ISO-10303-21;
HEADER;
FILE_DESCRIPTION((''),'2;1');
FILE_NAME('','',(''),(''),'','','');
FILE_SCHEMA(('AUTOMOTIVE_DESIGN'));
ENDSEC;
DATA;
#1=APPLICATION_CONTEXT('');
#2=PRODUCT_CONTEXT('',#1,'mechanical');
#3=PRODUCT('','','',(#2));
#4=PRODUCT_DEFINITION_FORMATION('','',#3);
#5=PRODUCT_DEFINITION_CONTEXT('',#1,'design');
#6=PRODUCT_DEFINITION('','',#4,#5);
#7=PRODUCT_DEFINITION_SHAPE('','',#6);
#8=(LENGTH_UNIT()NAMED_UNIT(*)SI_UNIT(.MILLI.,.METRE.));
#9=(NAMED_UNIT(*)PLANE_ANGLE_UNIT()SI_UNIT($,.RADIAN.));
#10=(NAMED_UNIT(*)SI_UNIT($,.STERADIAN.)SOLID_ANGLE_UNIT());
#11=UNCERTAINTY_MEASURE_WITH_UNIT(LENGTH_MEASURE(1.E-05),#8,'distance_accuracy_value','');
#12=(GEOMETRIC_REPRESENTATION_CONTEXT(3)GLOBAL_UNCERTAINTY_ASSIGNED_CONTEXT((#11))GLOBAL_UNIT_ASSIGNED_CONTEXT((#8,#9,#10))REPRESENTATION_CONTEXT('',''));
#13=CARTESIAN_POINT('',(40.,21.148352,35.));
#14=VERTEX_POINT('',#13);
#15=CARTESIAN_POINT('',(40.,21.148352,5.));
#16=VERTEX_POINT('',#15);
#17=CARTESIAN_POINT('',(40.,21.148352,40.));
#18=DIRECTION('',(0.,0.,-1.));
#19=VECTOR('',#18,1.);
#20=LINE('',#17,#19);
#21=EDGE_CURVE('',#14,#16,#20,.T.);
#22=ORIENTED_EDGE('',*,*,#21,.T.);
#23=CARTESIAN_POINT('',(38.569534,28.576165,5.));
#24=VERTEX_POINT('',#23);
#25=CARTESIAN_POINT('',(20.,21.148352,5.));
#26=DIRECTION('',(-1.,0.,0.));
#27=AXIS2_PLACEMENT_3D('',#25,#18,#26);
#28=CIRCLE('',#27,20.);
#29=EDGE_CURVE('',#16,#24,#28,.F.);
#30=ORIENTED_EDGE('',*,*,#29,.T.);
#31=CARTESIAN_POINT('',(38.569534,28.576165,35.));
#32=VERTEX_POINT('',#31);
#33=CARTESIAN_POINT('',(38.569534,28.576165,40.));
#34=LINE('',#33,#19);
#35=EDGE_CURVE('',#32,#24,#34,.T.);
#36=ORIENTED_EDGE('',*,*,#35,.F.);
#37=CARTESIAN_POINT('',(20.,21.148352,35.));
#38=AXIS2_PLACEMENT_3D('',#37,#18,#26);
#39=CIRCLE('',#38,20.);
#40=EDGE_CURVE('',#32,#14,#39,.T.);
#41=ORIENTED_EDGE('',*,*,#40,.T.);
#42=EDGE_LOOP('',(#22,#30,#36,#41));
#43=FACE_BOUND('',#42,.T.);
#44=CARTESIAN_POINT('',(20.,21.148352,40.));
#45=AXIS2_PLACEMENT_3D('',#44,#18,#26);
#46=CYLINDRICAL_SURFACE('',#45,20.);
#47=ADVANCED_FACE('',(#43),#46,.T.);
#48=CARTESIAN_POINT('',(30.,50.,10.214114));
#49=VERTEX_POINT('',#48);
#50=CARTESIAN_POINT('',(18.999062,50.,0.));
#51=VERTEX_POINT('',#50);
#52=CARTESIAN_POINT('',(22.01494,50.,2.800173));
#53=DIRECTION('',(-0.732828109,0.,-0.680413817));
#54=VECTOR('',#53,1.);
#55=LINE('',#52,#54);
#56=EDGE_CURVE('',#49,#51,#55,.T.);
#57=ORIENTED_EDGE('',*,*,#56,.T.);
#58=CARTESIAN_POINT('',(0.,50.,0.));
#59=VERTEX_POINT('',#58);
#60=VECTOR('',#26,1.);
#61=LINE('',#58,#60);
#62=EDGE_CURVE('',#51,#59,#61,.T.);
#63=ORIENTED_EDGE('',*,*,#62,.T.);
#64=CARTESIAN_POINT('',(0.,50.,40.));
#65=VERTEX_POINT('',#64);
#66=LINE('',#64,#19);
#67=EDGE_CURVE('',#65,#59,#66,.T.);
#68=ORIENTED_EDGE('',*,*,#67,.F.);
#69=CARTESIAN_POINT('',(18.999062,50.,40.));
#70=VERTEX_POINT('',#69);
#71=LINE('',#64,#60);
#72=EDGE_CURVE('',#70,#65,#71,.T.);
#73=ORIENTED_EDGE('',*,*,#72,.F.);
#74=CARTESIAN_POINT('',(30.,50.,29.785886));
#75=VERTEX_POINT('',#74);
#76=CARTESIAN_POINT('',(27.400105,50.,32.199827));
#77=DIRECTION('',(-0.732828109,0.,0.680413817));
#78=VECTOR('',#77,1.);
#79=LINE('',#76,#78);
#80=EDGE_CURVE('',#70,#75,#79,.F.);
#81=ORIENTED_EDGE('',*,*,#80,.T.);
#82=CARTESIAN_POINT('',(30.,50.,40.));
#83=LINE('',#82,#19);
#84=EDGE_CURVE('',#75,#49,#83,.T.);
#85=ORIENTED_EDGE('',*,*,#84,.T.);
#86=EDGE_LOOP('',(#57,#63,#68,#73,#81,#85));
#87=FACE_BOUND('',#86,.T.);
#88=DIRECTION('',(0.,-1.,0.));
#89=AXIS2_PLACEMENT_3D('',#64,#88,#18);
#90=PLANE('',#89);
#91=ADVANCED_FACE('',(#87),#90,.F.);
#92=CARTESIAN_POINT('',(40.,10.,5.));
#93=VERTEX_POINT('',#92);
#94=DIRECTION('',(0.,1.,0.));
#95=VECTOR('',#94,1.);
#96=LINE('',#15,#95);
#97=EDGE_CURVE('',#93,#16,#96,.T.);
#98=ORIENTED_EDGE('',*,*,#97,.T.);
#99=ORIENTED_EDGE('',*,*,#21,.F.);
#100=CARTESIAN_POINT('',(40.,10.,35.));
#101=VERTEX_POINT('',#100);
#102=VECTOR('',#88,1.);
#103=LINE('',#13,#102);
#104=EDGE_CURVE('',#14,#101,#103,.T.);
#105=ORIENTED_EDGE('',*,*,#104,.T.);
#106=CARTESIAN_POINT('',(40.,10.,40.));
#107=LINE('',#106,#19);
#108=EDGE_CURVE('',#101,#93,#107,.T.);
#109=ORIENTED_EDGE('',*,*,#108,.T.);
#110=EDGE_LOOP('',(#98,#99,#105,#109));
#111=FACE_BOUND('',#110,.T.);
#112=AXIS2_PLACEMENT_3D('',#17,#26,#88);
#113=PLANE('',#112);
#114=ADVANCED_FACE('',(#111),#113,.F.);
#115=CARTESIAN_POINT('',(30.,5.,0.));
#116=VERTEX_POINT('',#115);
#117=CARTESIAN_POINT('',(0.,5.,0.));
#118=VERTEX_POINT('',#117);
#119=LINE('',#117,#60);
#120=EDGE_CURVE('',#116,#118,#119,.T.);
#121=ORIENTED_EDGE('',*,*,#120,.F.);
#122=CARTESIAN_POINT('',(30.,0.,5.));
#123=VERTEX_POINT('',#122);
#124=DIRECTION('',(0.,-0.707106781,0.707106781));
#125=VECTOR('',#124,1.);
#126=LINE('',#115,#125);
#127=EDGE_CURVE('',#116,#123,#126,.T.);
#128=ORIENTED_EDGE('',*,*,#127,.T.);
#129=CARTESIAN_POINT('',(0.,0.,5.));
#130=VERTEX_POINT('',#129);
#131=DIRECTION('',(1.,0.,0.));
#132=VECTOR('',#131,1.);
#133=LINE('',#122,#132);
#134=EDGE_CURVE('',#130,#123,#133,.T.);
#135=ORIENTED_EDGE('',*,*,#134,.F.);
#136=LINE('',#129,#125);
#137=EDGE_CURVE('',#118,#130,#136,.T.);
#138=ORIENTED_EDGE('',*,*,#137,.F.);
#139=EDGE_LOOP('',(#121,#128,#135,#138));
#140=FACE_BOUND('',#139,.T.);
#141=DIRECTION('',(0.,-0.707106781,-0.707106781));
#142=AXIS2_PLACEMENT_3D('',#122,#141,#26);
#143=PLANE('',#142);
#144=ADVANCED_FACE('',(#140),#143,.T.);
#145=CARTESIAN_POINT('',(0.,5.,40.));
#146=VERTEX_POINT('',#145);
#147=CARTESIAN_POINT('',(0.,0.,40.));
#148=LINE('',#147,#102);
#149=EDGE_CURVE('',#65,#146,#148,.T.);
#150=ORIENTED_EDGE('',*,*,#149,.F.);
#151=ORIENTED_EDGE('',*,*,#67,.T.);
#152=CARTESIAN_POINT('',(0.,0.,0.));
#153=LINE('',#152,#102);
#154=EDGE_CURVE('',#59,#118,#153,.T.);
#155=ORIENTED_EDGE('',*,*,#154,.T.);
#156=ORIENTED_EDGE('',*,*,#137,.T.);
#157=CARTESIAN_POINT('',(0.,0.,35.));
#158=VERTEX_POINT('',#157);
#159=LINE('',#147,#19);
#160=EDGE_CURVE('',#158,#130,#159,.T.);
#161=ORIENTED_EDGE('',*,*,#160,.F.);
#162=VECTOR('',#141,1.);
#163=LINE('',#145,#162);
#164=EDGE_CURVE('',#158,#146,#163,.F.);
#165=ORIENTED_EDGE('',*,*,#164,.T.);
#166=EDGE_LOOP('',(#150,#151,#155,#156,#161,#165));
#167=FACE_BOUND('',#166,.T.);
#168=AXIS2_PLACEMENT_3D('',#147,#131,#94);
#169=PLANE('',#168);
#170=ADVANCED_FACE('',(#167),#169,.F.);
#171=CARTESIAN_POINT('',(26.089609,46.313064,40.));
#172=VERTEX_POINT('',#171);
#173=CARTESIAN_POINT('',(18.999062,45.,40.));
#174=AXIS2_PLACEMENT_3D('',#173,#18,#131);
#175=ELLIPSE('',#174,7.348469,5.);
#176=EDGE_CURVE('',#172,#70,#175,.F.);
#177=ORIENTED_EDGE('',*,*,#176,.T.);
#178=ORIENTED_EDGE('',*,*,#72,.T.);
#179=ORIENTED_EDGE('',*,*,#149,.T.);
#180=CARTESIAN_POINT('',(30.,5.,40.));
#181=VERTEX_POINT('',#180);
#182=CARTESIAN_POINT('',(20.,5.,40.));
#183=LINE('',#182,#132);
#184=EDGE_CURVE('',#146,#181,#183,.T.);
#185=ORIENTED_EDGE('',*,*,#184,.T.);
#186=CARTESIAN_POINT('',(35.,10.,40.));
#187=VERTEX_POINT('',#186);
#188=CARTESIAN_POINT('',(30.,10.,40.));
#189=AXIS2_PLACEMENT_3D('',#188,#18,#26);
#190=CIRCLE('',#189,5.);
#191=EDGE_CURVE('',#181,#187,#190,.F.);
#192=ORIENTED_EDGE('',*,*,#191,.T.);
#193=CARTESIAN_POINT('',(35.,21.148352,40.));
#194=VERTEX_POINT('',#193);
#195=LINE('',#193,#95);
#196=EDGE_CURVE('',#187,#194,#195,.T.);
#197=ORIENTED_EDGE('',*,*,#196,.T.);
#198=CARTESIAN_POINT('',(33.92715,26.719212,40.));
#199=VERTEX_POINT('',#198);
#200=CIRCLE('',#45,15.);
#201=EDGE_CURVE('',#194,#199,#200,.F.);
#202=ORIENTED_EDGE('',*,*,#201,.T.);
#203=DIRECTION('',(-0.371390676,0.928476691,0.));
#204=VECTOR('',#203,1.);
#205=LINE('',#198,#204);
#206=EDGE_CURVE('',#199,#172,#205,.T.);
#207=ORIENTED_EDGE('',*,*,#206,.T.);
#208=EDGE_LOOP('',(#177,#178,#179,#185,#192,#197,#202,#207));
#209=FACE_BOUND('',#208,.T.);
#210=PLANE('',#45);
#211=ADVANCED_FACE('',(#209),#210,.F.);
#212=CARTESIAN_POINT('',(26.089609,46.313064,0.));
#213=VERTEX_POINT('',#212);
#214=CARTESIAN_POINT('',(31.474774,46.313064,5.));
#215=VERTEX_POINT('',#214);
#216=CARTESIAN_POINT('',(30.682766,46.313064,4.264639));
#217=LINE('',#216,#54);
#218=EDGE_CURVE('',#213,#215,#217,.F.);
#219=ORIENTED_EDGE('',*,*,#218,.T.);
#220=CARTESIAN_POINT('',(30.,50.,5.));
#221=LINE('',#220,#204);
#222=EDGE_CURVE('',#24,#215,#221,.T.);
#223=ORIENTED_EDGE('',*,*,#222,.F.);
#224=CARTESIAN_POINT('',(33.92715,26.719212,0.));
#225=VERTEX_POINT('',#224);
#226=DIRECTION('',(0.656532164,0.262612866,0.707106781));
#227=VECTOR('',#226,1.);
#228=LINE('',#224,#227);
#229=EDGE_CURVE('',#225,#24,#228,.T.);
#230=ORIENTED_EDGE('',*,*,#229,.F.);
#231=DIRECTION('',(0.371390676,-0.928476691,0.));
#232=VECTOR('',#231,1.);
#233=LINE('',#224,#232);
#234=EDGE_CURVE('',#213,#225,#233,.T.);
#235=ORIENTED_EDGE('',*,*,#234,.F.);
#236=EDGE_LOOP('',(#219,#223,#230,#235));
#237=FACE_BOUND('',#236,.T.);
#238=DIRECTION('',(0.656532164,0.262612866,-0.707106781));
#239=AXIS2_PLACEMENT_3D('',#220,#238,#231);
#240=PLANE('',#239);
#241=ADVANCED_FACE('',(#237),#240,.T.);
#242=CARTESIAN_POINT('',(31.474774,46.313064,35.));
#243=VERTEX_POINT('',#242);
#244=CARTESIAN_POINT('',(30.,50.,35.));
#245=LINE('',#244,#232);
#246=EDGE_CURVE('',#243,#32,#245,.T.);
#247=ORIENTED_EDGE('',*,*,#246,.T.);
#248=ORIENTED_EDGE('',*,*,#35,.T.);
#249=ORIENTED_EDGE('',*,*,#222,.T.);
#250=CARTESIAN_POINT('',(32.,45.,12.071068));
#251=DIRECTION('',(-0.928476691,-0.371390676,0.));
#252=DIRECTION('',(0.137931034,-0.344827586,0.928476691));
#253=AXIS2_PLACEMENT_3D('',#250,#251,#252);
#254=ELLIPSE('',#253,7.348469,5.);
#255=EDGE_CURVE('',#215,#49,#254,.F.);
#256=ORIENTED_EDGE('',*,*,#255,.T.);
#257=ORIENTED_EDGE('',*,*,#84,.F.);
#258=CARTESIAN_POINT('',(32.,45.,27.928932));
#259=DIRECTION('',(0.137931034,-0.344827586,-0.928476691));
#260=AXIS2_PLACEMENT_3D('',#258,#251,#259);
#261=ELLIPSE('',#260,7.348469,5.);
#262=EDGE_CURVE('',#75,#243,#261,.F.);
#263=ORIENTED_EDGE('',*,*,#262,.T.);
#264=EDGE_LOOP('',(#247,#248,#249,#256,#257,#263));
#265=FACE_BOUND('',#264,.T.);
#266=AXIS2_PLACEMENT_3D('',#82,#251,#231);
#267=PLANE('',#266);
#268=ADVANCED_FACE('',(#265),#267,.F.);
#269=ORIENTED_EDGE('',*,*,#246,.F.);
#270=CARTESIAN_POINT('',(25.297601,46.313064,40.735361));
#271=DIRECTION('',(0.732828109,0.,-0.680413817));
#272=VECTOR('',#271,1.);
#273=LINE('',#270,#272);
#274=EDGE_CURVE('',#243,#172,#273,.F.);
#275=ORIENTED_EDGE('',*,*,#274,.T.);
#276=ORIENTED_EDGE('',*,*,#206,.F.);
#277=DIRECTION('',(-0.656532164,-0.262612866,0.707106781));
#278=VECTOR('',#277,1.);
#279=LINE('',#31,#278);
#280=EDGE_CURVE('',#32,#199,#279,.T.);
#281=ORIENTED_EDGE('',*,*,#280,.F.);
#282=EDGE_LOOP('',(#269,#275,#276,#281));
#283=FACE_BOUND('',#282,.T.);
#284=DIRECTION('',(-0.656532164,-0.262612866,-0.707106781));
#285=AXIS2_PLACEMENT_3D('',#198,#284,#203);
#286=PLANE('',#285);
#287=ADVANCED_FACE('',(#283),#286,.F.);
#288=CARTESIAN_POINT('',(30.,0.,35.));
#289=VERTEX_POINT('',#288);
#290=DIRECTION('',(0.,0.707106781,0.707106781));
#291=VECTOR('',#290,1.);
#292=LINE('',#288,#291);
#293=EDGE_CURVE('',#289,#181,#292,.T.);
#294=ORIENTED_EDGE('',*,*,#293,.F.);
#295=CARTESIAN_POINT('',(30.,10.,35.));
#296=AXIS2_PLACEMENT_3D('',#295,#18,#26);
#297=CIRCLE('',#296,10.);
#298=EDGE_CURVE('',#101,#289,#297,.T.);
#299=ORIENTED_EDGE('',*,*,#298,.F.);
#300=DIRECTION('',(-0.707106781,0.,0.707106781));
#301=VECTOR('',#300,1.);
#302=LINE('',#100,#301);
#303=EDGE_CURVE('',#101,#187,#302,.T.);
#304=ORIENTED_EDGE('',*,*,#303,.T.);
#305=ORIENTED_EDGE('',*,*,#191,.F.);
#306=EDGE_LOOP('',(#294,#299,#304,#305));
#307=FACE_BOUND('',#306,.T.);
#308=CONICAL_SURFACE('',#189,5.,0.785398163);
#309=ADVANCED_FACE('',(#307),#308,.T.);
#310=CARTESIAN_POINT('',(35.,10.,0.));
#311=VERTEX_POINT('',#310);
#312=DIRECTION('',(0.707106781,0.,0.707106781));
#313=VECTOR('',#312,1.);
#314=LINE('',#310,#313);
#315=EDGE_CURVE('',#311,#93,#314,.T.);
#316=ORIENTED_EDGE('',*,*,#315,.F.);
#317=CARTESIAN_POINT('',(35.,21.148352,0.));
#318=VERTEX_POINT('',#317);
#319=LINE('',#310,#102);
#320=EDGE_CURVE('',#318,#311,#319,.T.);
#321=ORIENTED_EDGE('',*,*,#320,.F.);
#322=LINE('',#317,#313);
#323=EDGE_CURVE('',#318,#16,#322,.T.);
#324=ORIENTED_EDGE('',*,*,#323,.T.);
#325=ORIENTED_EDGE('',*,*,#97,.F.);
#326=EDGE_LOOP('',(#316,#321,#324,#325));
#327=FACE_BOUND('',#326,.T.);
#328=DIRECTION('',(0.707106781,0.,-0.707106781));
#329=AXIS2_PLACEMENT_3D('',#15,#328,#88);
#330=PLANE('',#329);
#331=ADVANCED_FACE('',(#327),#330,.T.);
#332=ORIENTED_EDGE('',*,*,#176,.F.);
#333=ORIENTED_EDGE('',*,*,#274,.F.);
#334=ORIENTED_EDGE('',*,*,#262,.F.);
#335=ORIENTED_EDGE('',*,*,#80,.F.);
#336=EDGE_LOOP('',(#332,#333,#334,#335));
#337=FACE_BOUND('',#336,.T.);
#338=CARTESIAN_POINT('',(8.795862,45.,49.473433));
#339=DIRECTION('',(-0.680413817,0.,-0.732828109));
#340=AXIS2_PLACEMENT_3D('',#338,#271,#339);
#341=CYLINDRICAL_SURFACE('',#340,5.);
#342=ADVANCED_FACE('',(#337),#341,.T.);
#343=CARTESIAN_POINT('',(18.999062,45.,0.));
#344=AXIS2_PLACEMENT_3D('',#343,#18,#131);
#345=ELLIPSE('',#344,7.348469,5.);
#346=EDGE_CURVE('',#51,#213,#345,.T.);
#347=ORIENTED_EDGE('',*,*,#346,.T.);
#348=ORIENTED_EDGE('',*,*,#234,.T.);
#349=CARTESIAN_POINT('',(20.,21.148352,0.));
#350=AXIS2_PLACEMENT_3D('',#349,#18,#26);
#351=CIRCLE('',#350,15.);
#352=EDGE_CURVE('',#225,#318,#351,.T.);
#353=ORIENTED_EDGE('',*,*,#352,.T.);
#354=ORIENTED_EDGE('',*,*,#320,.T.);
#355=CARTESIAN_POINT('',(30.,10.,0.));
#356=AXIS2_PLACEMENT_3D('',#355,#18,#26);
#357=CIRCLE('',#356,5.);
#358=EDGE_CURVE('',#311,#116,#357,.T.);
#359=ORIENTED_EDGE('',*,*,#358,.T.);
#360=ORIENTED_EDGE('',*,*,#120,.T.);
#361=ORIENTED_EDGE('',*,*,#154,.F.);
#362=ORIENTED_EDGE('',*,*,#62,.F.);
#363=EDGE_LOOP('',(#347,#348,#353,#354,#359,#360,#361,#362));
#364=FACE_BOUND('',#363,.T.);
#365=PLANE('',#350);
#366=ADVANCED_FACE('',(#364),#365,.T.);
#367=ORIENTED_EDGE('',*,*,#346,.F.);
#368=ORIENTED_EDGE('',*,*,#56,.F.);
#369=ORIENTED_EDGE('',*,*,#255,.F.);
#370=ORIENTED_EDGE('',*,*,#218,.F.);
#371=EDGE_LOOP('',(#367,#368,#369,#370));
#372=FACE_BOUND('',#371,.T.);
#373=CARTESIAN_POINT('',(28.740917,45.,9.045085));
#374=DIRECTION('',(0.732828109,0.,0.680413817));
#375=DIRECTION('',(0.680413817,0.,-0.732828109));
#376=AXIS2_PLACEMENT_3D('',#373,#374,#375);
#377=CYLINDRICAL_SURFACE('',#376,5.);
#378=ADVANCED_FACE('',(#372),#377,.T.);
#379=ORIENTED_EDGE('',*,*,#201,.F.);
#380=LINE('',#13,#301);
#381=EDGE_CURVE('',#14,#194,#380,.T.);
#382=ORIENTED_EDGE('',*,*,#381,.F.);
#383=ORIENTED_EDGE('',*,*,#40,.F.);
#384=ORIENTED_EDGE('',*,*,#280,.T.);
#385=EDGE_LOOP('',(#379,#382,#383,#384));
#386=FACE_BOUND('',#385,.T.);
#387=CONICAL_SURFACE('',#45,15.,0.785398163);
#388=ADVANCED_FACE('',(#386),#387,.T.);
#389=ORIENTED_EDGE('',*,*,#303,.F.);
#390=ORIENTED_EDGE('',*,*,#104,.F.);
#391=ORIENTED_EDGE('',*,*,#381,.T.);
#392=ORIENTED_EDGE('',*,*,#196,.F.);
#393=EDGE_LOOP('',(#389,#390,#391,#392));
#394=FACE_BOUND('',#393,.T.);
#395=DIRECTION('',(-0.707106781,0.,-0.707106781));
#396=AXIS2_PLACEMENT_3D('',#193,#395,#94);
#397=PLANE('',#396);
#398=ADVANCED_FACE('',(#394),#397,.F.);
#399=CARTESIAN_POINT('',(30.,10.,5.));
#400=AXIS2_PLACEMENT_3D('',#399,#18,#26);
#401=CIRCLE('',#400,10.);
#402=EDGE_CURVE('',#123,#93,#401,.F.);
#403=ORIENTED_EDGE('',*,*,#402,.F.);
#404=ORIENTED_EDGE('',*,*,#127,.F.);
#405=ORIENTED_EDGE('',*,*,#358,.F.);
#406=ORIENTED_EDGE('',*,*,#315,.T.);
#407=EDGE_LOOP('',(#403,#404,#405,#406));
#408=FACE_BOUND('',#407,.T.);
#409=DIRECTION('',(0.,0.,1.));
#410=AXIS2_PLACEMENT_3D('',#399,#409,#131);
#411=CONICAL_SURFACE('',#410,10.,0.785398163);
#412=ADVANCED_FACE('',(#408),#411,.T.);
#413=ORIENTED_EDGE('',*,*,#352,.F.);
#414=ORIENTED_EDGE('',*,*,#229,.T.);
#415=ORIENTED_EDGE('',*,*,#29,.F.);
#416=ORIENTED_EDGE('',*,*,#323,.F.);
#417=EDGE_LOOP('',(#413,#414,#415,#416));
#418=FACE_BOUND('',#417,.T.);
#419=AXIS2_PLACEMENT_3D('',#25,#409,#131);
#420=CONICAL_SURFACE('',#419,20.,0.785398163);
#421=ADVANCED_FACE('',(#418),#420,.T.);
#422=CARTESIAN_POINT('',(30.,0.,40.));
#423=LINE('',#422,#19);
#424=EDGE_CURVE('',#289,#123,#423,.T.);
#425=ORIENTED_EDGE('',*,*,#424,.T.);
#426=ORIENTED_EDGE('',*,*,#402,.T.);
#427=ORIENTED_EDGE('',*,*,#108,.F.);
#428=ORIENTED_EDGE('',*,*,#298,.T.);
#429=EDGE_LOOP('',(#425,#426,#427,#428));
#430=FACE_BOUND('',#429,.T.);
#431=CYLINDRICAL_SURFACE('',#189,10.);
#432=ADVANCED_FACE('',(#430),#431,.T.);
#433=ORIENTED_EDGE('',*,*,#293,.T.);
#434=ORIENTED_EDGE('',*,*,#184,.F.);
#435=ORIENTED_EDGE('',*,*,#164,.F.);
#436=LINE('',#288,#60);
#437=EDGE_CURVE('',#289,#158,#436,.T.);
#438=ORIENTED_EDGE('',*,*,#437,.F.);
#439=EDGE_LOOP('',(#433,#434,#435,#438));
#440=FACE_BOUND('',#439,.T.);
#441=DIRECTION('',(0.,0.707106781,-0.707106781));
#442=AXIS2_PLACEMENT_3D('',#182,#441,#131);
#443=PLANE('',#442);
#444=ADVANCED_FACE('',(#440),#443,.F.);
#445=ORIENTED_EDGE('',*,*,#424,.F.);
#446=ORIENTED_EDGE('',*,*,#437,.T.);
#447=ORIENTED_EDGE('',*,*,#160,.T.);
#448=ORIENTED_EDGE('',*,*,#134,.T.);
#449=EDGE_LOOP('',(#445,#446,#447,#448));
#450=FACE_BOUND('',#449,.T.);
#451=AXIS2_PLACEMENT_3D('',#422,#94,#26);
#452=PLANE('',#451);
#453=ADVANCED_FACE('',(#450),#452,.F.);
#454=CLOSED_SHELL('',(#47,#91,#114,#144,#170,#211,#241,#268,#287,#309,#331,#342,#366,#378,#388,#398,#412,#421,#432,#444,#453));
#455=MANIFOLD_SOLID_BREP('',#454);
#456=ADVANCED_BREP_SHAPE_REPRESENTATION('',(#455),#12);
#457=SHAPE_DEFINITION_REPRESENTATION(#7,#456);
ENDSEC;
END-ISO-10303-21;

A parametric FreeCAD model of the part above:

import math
import FreeCAD as App
import Part
import Sketcher
from FreeCAD import Vector
Q = App.Units.Quantity


def edges_at(feature, points):
    """Names of the edges that pass closest to the given points."""
    edges = feature.Shape.Edges
    near = lambda p: min(range(len(edges)), key=lambda i: edges[i].distToShape(Part.Vertex(*p))[0])
    return sorted({f"Edge{near(p) + 1}" for p in points})

doc = App.newDocument("Part")
body = doc.addObject("PartDesign::Body", "Body")

# Sketch on XY plane
sketch1 = body.newObject("Sketcher::SketchObject", "Sketch")
sketch1.AttachmentSupport = (doc.getObject("XY_Plane"), [""])
sketch1.MapMode = "FlatFace"
sketch1.addGeometry(Part.LineSegment(Vector(0, 50, 0), Vector(0, 0, 0)), False)
sketch1.addGeometry(Part.LineSegment(Vector(0, 0, 0), Vector(30, 0, 0)), False)
sketch1.addGeometry(Part.ArcOfCircle(Part.Circle(Vector(30, 10, 0), Vector(0, 0, 1), 10), math.radians(-90), math.radians(0)), False)
sketch1.addGeometry(Part.LineSegment(Vector(40, 10, 0), Vector(40, 21, 0)), False)
sketch1.addGeometry(Part.ArcOfCircle(Part.Circle(Vector(20, 21, 0), Vector(0, 0, 1), 20), math.radians(0), math.radians(22)), False)
sketch1.addGeometry(Part.LineSegment(Vector(39, 29, 0), Vector(30, 50, 0)), False)
sketch1.addGeometry(Part.LineSegment(Vector(30, 50, 0), Vector(0, 50, 0)), False)
sketch1.addConstraint(Sketcher.Constraint("Coincident", 0, 2, 1, 1))
sketch1.addConstraint(Sketcher.Constraint("Tangent", 1, 2, 2, 1))
sketch1.addConstraint(Sketcher.Constraint("Tangent", 2, 2, 3, 1))
sketch1.addConstraint(Sketcher.Constraint("Tangent", 3, 2, 4, 1))
sketch1.addConstraint(Sketcher.Constraint("Tangent", 4, 2, 5, 1))
sketch1.addConstraint(Sketcher.Constraint("Coincident", 5, 2, 6, 1))
sketch1.addConstraint(Sketcher.Constraint("Coincident", 6, 2, 0, 1))
sketch1.addConstraint(Sketcher.Constraint("Vertical", 0))
sketch1.addConstraint(Sketcher.Constraint("Horizontal", 1))
sketch1.addConstraint(Sketcher.Constraint("Vertical", 3))
sketch1.addConstraint(Sketcher.Constraint("Horizontal", 6))
sketch1.addConstraint(Sketcher.Constraint("Coincident", 0, 2, -1, 1))
sketch1.addConstraint(Sketcher.Constraint("Vertical", 1, 2, 5, 2))
sketch1.addConstraint(Sketcher.Constraint("Radius", 2, Q("10 mm")))
sketch1.addConstraint(Sketcher.Constraint("Radius", 4, Q("20 mm")))
sketch1.addConstraint(Sketcher.Constraint("DistanceX", 1, 1, 1, 2, Q("30 mm")))
sketch1.addConstraint(Sketcher.Constraint("DistanceY", 0, 2, 0, 1, Q("50 mm")))
sketch1.addConstraint(Sketcher.Constraint("DistanceY", 3, 1, 3, 2, Q("11.148352 mm")))
pad1 = body.newObject("PartDesign::Pad", "Pad")
pad1.Profile = sketch1
pad1.Length = 40
doc.recompute()

chamfer = body.newObject("PartDesign::Chamfer", "Chamfer")
chamfer.Base = (pad1, edges_at(pad1, [
    (15, 0, 0),
    (40, 15.574, 40),
    (39.639, 24.931, 40),
    (34.285, 39.288, 40),
    (15, 0, 40),
    (34.285, 39.288, 0),
    (39.639, 24.931, 0),
    (37.071, 2.929, 40),
    (40, 15.574, 0),
    (37.071, 2.929, 0),
]))
chamfer.Size = 5
doc.recompute()

fillet = body.newObject("PartDesign::Fillet", "Fillet")
fillet.Base = (chamfer, edges_at(chamfer, [(27.307, 50, 37.5), (27.307, 50, 2.5)]))
fillet.Radius = 5

doc.recompute()
